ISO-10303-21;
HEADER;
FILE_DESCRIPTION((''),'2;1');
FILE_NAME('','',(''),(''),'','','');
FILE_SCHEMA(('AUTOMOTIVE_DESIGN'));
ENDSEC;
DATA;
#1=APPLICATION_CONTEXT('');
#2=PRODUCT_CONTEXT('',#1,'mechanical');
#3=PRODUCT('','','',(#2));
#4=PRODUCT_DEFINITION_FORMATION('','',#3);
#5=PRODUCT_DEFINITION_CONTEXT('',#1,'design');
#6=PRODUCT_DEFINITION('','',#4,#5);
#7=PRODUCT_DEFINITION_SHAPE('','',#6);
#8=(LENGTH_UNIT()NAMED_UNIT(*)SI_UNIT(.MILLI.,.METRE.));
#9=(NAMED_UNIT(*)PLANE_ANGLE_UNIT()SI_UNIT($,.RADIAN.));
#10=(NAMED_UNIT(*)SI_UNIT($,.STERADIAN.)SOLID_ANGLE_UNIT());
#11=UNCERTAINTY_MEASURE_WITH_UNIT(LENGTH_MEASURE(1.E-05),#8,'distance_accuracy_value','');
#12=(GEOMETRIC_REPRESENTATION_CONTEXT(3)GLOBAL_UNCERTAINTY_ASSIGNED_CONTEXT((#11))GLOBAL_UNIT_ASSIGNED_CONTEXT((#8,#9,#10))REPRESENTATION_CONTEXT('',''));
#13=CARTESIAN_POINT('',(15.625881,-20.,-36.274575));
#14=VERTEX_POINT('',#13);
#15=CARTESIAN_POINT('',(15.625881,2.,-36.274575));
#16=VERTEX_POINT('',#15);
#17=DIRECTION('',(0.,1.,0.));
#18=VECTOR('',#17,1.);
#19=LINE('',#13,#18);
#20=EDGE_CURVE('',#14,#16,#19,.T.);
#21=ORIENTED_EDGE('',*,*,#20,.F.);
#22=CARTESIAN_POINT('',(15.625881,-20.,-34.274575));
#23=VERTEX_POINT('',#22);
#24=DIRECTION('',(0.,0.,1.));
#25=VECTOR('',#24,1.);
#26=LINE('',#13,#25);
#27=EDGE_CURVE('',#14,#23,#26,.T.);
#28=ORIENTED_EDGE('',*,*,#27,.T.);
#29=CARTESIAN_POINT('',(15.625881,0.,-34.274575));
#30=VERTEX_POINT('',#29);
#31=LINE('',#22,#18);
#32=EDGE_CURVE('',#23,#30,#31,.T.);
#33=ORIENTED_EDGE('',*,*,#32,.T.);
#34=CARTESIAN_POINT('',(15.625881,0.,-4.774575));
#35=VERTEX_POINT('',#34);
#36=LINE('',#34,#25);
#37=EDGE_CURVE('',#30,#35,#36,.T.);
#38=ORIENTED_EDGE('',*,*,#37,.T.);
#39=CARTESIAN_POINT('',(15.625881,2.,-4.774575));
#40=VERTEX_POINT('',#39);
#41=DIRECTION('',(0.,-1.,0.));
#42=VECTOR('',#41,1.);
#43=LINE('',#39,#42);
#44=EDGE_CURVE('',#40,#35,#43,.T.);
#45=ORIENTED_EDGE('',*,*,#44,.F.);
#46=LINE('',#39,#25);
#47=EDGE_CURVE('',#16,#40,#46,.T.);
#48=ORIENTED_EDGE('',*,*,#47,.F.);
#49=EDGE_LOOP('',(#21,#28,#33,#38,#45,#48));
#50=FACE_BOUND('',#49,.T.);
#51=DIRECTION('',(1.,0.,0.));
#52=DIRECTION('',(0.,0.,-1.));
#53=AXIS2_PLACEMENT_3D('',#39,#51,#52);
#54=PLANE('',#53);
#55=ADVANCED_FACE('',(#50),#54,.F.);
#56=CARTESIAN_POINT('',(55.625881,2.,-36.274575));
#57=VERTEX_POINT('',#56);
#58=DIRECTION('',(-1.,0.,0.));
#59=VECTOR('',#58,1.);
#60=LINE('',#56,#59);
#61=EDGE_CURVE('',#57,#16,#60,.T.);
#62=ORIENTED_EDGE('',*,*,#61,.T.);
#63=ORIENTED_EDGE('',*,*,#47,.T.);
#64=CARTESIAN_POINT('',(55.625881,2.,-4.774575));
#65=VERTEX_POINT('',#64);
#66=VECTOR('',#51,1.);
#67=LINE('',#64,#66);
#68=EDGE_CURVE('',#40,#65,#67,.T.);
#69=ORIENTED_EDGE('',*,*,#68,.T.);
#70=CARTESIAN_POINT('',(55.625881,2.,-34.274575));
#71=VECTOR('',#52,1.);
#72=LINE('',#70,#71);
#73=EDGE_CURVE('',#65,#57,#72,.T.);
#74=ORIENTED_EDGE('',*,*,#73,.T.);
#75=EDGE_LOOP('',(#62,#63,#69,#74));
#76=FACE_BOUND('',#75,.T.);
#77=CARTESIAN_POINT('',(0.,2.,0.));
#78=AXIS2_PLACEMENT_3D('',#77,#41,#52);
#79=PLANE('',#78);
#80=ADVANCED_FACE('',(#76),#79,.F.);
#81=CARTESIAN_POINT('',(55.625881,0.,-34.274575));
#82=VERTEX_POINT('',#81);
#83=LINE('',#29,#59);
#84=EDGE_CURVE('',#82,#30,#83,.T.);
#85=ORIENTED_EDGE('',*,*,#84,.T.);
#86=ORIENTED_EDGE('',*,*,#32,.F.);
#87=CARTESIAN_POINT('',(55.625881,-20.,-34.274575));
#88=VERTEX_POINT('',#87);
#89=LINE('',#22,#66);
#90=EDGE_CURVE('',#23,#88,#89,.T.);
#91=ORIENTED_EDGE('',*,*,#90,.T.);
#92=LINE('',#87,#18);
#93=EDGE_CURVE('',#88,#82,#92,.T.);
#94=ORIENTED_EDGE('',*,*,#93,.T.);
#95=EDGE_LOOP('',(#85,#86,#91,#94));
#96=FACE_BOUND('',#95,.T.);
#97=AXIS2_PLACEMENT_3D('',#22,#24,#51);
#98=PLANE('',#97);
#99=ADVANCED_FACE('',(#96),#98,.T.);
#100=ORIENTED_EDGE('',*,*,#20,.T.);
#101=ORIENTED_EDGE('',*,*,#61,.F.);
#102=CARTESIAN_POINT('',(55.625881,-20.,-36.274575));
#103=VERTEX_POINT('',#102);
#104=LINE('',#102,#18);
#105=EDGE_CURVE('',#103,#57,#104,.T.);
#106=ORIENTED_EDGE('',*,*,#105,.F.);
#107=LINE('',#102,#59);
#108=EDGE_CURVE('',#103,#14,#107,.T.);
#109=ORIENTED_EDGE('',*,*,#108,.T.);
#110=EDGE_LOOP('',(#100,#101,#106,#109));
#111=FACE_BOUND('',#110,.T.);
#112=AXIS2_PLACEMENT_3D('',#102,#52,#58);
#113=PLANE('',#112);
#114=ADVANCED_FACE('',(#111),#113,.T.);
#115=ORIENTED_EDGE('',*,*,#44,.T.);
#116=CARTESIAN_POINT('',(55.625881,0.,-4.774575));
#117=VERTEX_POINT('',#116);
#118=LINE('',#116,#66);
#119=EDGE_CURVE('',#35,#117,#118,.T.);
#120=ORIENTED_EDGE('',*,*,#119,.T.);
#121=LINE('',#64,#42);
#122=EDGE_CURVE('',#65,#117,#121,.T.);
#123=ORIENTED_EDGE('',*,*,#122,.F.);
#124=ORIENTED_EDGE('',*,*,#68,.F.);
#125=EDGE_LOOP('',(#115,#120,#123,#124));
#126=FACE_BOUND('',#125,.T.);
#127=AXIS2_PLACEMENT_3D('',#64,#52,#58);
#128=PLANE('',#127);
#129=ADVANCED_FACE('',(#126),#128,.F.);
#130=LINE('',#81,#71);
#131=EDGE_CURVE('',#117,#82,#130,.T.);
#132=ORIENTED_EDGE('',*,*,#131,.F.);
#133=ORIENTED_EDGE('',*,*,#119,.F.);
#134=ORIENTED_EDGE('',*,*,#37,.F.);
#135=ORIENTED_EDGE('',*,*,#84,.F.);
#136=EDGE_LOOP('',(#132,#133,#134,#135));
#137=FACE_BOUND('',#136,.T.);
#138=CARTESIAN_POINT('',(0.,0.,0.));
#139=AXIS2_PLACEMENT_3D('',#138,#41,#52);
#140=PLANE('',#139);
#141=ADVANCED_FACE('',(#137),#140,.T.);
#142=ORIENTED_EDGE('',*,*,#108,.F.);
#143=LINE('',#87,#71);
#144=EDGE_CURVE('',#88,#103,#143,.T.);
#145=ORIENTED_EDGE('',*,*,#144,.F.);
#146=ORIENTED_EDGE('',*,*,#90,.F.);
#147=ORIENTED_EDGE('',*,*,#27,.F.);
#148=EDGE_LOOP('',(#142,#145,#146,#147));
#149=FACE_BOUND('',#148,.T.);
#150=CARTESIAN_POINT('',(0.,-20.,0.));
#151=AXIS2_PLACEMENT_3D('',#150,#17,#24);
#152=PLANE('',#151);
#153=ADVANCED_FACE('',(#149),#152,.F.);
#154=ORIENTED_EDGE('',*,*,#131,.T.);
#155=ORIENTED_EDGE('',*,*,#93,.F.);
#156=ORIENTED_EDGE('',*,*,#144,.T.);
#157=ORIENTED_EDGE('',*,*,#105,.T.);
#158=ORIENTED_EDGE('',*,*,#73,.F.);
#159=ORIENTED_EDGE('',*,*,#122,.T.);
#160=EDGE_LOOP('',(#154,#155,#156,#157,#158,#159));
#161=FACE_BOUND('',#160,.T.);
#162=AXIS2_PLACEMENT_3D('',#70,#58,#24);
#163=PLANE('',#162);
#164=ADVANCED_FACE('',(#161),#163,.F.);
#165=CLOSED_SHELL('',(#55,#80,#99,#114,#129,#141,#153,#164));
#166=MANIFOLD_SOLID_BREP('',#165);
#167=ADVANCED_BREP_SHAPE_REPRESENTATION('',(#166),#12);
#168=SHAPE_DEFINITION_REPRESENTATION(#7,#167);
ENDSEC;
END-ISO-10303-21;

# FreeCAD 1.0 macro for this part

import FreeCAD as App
import Part
import Sketcher

doc = App.newDocument("Part")
body = doc.addObject("PartDesign::Body", "Body")

# Sketch on XZ plane
sketch1 = body.newObject("Sketcher::SketchObject", "Sketch")
sketch1.AttachmentSupport = (doc.getObject("XZ_Plane"), [""])
sketch1.MapMode = "FlatFace"
sketch1.addGeometry(Part.LineSegment(App.Vector(16, -34, 0), App.Vector(16, -5, 0)), False)
sketch1.addGeometry(Part.LineSegment(App.Vector(16, -5, 0), App.Vector(56, -5, 0)), False)
sketch1.addGeometry(Part.LineSegment(App.Vector(56, -5, 0), App.Vector(56, -34, 0)), False)
sketch1.addGeometry(Part.LineSegment(App.Vector(56, -34, 0), App.Vector(16, -34, 0)), False)
sketch1.addConstraint(Sketcher.Constraint("Coincident", 0, 2, 1, 1))
sketch1.addConstraint(Sketcher.Constraint("Coincident", 1, 2, 2, 1))
sketch1.addConstraint(Sketcher.Constraint("Coincident", 2, 2, 3, 1))
sketch1.addConstraint(Sketcher.Constraint("Coincident", 3, 2, 0, 1))
sketch1.addConstraint(Sketcher.Constraint("Vertical", 0))
sketch1.addConstraint(Sketcher.Constraint("Horizontal", 1))
sketch1.addConstraint(Sketcher.Constraint("Vertical", 2))
sketch1.addConstraint(Sketcher.Constraint("Horizontal", 3))
sketch1.addConstraint(Sketcher.Constraint("DistanceX", 1, 1, 1, 2, 40.0))
sketch1.addConstraint(Sketcher.Constraint("DistanceY", 0, 1, 0, 2, 29.5))
sketch1.addConstraint(Sketcher.Constraint("DistanceX", -1, 1, 0, 2, 15.625881))
sketch1.addConstraint(Sketcher.Constraint("DistanceY", 0, 2, -1, 1, 4.774575))
pad1 = body.newObject("PartDesign::Pad", "Pad")
pad1.Profile = sketch1
pad1.Length = 2
pad1.Reversed = True

# Sketch on XZ plane
sketch2 = body.newObject("Sketcher::SketchObject", "Sketch001")
sketch2.AttachmentSupport = (doc.getObject("XZ_Plane"), [""])
sketch2.MapMode = "FlatFace"
sketch2.AttachmentOffset = App.Placement(App.Vector(0, 0, -2), App.Rotation())
sketch2.addGeometry(Part.LineSegment(App.Vector(15.6, -36.3, 0), App.Vector(15.6, -34.3, 0)), False)
sketch2.addGeometry(Part.LineSegment(App.Vector(15.6, -34.3, 0), App.Vector(55.6, -34.3, 0)), False)
sketch2.addGeometry(Part.LineSegment(App.Vector(55.6, -34.3, 0), App.Vector(55.6, -36.3, 0)), False)
sketch2.addGeometry(Part.LineSegment(App.Vector(55.6, -36.3, 0), App.Vector(15.6, -36.3, 0)), False)
sketch2.addConstraint(Sketcher.Constraint("Coincident", 0, 2, 1, 1))
sketch2.addConstraint(Sketcher.Constraint("Coincident", 1, 2, 2, 1))
sketch2.addConstraint(Sketcher.Constraint("Coincident", 2, 2, 3, 1))
sketch2.addConstraint(Sketcher.Constraint("Coincident", 3, 2, 0, 1))
sketch2.addConstraint(Sketcher.Constraint("Vertical", 0))
sketch2.addConstraint(Sketcher.Constraint("Horizontal", 1))
sketch2.addConstraint(Sketcher.Constraint("Vertical", 2))
sketch2.addConstraint(Sketcher.Constraint("Horizontal", 3))
sketch2.addConstraint(Sketcher.Constraint("DistanceX", 1, 1, 1, 2, 40.0))
sketch2.addConstraint(Sketcher.Constraint("DistanceY", 0, 1, 0, 2, 2.0))
sketch2.addConstraint(Sketcher.Constraint("DistanceX", -1, 1, 0, 2, 15.625881))
sketch2.addConstraint(Sketcher.Constraint("DistanceY", 0, 2, -1, 1, 34.274575))
pad2 = body.newObject("PartDesign::Pad", "Pad001")
pad2.Profile = sketch2
pad2.Length = 22

doc.recompute()
